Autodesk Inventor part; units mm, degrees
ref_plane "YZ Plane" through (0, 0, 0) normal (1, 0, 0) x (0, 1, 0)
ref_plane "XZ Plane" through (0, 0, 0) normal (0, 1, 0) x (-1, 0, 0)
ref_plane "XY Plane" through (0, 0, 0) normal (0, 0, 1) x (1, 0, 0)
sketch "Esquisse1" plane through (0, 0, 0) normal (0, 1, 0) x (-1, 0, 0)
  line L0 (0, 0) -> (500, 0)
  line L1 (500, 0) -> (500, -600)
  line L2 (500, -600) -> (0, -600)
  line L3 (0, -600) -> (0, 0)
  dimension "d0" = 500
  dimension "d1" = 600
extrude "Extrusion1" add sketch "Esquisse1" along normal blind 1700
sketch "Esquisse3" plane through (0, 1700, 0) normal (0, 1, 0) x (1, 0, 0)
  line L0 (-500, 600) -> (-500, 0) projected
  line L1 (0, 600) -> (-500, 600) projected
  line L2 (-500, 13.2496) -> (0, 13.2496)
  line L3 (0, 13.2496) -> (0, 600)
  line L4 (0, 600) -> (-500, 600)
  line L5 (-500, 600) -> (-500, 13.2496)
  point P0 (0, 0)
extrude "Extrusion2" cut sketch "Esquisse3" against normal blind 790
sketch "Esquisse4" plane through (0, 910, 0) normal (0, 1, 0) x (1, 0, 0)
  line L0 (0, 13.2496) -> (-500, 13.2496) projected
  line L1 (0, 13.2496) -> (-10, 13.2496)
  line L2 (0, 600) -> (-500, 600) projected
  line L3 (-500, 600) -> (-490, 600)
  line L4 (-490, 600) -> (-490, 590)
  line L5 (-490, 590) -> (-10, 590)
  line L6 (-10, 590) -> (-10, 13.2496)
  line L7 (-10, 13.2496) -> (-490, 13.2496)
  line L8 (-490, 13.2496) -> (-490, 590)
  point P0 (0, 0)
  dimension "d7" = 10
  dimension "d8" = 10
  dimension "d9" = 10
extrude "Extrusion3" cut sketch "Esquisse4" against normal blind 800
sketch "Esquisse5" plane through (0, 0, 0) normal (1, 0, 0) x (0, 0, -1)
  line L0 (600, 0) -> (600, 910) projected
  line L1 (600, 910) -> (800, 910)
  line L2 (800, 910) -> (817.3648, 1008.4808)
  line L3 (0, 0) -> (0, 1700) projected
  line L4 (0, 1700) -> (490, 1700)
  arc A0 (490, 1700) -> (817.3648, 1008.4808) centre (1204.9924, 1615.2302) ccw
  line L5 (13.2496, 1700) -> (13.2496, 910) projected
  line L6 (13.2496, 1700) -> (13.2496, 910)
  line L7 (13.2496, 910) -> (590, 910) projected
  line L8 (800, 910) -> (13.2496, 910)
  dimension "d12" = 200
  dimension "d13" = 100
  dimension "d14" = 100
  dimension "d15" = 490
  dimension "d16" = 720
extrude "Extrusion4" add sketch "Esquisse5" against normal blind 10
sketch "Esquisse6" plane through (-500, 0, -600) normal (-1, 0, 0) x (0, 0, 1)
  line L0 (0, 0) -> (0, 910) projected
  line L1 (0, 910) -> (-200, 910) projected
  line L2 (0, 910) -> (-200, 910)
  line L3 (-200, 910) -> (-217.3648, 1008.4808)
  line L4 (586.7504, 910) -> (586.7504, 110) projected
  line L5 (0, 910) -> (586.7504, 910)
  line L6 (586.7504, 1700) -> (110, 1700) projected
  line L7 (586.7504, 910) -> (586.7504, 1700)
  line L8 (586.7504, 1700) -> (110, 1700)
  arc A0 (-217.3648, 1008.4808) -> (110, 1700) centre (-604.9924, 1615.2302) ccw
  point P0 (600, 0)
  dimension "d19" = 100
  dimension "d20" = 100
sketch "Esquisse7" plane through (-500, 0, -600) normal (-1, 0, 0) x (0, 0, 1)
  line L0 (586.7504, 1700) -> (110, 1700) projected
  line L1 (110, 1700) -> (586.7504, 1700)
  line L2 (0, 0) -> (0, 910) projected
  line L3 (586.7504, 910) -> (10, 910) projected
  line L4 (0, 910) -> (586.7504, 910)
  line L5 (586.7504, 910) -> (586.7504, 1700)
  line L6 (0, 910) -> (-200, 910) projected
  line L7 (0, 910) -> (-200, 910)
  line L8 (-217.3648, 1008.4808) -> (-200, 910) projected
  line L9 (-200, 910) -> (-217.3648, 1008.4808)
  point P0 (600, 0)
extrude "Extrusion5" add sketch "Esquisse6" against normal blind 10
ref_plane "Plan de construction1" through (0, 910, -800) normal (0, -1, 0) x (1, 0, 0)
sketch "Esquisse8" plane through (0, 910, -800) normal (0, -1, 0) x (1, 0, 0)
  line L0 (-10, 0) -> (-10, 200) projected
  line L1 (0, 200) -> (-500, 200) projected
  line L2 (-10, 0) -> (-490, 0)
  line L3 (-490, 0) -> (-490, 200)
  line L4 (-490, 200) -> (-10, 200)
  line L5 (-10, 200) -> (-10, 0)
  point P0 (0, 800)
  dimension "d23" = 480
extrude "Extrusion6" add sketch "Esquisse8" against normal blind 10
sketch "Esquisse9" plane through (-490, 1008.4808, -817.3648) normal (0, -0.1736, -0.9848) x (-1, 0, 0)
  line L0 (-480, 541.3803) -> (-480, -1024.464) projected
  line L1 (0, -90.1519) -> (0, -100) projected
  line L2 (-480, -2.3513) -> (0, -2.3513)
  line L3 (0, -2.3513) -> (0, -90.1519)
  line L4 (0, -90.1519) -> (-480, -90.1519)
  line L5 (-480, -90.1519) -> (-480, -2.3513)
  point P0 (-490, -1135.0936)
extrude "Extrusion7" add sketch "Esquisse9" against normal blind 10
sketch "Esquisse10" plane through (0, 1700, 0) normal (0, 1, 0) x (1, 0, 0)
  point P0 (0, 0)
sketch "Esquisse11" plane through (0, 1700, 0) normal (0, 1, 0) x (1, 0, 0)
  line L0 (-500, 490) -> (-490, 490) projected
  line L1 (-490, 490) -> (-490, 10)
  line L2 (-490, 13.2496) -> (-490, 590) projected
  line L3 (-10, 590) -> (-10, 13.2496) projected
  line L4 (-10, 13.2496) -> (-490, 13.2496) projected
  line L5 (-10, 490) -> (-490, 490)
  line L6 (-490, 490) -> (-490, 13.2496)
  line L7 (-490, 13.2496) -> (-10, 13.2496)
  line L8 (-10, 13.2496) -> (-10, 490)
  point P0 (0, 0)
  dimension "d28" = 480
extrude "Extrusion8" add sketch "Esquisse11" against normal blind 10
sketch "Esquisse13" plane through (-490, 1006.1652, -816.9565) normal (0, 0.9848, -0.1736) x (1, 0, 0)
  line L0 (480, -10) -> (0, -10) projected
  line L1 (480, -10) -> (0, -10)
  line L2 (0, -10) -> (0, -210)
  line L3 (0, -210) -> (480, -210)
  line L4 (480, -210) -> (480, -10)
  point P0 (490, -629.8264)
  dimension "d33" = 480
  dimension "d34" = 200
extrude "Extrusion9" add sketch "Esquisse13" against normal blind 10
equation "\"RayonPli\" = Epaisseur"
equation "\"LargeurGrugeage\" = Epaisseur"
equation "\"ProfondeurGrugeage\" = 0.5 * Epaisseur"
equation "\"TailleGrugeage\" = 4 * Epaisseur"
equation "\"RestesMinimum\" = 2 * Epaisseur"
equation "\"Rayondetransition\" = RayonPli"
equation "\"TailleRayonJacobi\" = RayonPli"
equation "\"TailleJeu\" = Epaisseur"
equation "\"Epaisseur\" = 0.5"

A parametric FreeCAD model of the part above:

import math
import FreeCAD as App
import Part
import Sketcher
Q = App.Units.Quantity

doc = App.newDocument("Part")
body = doc.addObject("PartDesign::Body", "Body")

# Sketch on XZ plane
sketch1 = body.newObject("Sketcher::SketchObject", "Sketch")
sketch1.AttachmentSupport = (doc.getObject("XZ_Plane"), [""])
sketch1.MapMode = "FlatFace"
sketch1.addGeometry([
    Part.LineSegment(App.Vector(-500, 0, 0), App.Vector(0, 0, 0)),
    Part.LineSegment(App.Vector(0, 0, 0), App.Vector(0, -600, 0)),
    Part.LineSegment(App.Vector(0, -600, 0), App.Vector(-500, -600, 0)),
    Part.LineSegment(App.Vector(-500, -600, 0), App.Vector(-500, 0, 0)),
], False)
sketch1.addConstraint([
    Sketcher.Constraint("Coincident", 0, 2, 1, 1),
    Sketcher.Constraint("Coincident", 1, 2, 2, 1),
    Sketcher.Constraint("Coincident", 2, 2, 3, 1),
    Sketcher.Constraint("Coincident", 3, 2, 0, 1),
    Sketcher.Constraint("Horizontal", 0),
    Sketcher.Constraint("Vertical", 1),
    Sketcher.Constraint("Horizontal", 2),
    Sketcher.Constraint("Vertical", 3),
    Sketcher.Constraint("Coincident", 0, 2, -1, 1),
    Sketcher.Constraint("DistanceX", 0, 1, 0, 2, Q("500 mm")),
    Sketcher.Constraint("DistanceY", 1, 2, 1, 1, Q("600 mm")),
])
pad1 = body.newObject("PartDesign::Pad", "Pad")
pad1.Profile = sketch1
pad1.Length = 1700
pad1.Reversed = True

# Sketch on XZ plane
sketch2 = body.newObject("Sketcher::SketchObject", "Sketch001")
sketch2.AttachmentSupport = (doc.getObject("XZ_Plane"), [""])
sketch2.MapMode = "FlatFace"
sketch2.AttachmentOffset = App.Placement(App.Vector(0, 0, -1700), App.Rotation())
sketch2.addGeometry([
    Part.LineSegment(App.Vector(0, -600, 0), App.Vector(-500, -600, 0)),
    Part.LineSegment(App.Vector(-500, -600, 0), App.Vector(-500, -13, 0)),
    Part.LineSegment(App.Vector(-500, -13, 0), App.Vector(0, -13, 0)),
    Part.LineSegment(App.Vector(0, -13, 0), App.Vector(0, -600, 0)),
], False)
sketch2.addConstraint([
    Sketcher.Constraint("Coincident", 0, 2, 1, 1),
    Sketcher.Constraint("Coincident", 1, 2, 2, 1),
    Sketcher.Constraint("Coincident", 2, 2, 3, 1),
    Sketcher.Constraint("Coincident", 3, 2, 0, 1),
    Sketcher.Constraint("Horizontal", 0),
    Sketcher.Constraint("Vertical", 1),
    Sketcher.Constraint("Horizontal", 2),
    Sketcher.Constraint("Vertical", 3),
    Sketcher.Constraint("PointOnObject", 2, 2, -2),
    Sketcher.Constraint("DistanceX", 0, 2, 0, 1, Q("500 mm")),
    Sketcher.Constraint("DistanceY", 0, 2, -1, 1, Q("600 mm")),
    Sketcher.Constraint("DistanceY", 1, 1, 1, 2, Q("586.7504 mm")),
])
pocket1 = body.newObject("PartDesign::Pocket", "Pocket")
pocket1.Profile = sketch2
pocket1.Length = 790
pocket1.Reversed = True

# Sketch on XZ plane
sketch3 = body.newObject("Sketcher::SketchObject", "Sketch002")
sketch3.AttachmentSupport = (doc.getObject("XZ_Plane"), [""])
sketch3.MapMode = "FlatFace"
sketch3.AttachmentOffset = App.Placement(App.Vector(0, 0, -910), App.Rotation())
sketch3.addGeometry([
    Part.LineSegment(App.Vector(-490, -13, 0), App.Vector(-10, -13, 0)),
    Part.LineSegment(App.Vector(-10, -13, 0), App.Vector(-10, -590, 0)),
    Part.LineSegment(App.Vector(-10, -590, 0), App.Vector(-490, -590, 0)),
    Part.LineSegment(App.Vector(-490, -590, 0), App.Vector(-490, -13, 0)),
], False)
sketch3.addConstraint([
    Sketcher.Constraint("Coincident", 0, 2, 1, 1),
    Sketcher.Constraint("Coincident", 1, 2, 2, 1),
    Sketcher.Constraint("Coincident", 2, 2, 3, 1),
    Sketcher.Constraint("Coincident", 3, 2, 0, 1),
    Sketcher.Constraint("Horizontal", 0),
    Sketcher.Constraint("Vertical", 1),
    Sketcher.Constraint("Horizontal", 2),
    Sketcher.Constraint("Vertical", 3),
    Sketcher.Constraint("DistanceX", 0, 2, -1, 1, Q("10 mm")),
    Sketcher.Constraint("DistanceX", 0, 1, 0, 2, Q("480 mm")),
    Sketcher.Constraint("DistanceY", 1, 2, -1, 1, Q("590 mm")),
    Sketcher.Constraint("DistanceY", 1, 2, 1, 1, Q("576.7504 mm")),
])
pocket2 = body.newObject("PartDesign::Pocket", "Pocket001")
pocket2.Profile = sketch3
pocket2.Length = 800
pocket2.Reversed = True

# Sketch on YZ plane
sketch4 = body.newObject("Sketcher::SketchObject", "Sketch003")
sketch4.AttachmentSupport = (doc.getObject("YZ_Plane"), [""])
sketch4.MapMode = "FlatFace"
sketch4.addGeometry([
    Part.LineSegment(App.Vector(910, -13, 0), App.Vector(910, -800, 0)),  # 0
    Part.LineSegment(App.Vector(910, -800, 0), App.Vector(1008, -817, 0)),  # 1
    Part.ArcOfCircle(Part.Circle(App.Vector(1615, -1205, 0), App.Vector(0, 0, 1), 720), math.radians(83), math.radians(147)),  # 2
    Part.LineSegment(App.Vector(1700, -490, 0), App.Vector(1700, -13, 0)),  # 3
    Part.LineSegment(App.Vector(1700, -13, 0), App.Vector(910, -13, 0)),  # 4
], False)
sketch4.addConstraint([
    Sketcher.Constraint("Coincident", 0, 2, 1, 1),
    Sketcher.Constraint("Coincident", 1, 2, 2, 2),
    Sketcher.Constraint("Coincident", 2, 1, 3, 1),
    Sketcher.Constraint("Coincident", 3, 2, 4, 1),
    Sketcher.Constraint("Coincident", 4, 2, 0, 1),
    Sketcher.Constraint("Vertical", 0),
    Sketcher.Constraint("Vertical", 3),
    Sketcher.Constraint("Horizontal", 4),
    Sketcher.Constraint("Radius", 2, Q("720 mm")),
    Sketcher.Constraint("Distance", 1, Q("100 mm")),
    Sketcher.Constraint("DistanceY", 2, 1, -1, 1, Q("490 mm")),
    Sketcher.Constraint("DistanceX", 4, 2, 4, 1, Q("790 mm")),
    Sketcher.Constraint("Angle", 1, Q("-10 deg")),
    Sketcher.Constraint("DistanceX", -1, 1, 0, 2, Q("910 mm")),
    Sketcher.Constraint("DistanceY", 0, 2, -1, 1, Q("800 mm")),
    Sketcher.Constraint("DistanceY", 0, 2, 0, 1, Q("786.7504 mm")),
])
pad2 = body.newObject("PartDesign::Pad", "Pad001")
pad2.Profile = sketch4
pad2.Length = 10
pad2.Reversed = True

# Sketch on YZ plane
sketch5 = body.newObject("Sketcher::SketchObject", "Sketch004")
sketch5.AttachmentSupport = (doc.getObject("YZ_Plane"), [""])
sketch5.MapMode = "FlatFace"
sketch5.AttachmentOffset = App.Placement(App.Vector(0, 0, -500), App.Rotation())
sketch5.addGeometry([
    Part.LineSegment(App.Vector(910, -800, 0), App.Vector(910, -13, 0)),  # 0
    Part.LineSegment(App.Vector(910, -13, 0), App.Vector(1700, -13, 0)),  # 1
    Part.LineSegment(App.Vector(1700, -13, 0), App.Vector(1700, -490, 0)),  # 2
    Part.ArcOfCircle(Part.Circle(App.Vector(1615, -1205, 0), App.Vector(0, 0, 1), 720), math.radians(83), math.radians(147)),  # 3
    Part.LineSegment(App.Vector(1008, -817, 0), App.Vector(910, -800, 0)),  # 4
], False)
sketch5.addConstraint([
    Sketcher.Constraint("Coincident", 0, 2, 1, 1),
    Sketcher.Constraint("Coincident", 1, 2, 2, 1),
    Sketcher.Constraint("Coincident", 2, 2, 3, 1),
    Sketcher.Constraint("Coincident", 3, 2, 4, 1),
    Sketcher.Constraint("Coincident", 4, 2, 0, 1),
    Sketcher.Constraint("Vertical", 0),
    Sketcher.Constraint("Horizontal", 1),
    Sketcher.Constraint("Vertical", 2),
    Sketcher.Constraint("Distance", 4, Q("100 mm")),
    Sketcher.Constraint("Radius", 3, Q("720 mm")),
    Sketcher.Constraint("DistanceX", 1, 1, 1, 2, Q("790 mm")),
    Sketcher.Constraint("Angle", 4, Q("170 deg")),
    Sketcher.Constraint("DistanceX", -1, 1, 0, 2, Q("910 mm")),
    Sketcher.Constraint("DistanceY", 2, 2, -1, 1, Q("490 mm")),
    Sketcher.Constraint("DistanceY", 4, 2, -1, 1, Q("800 mm")),
    Sketcher.Constraint("DistanceY", 0, 1, 0, 2, Q("786.7504 mm")),
])
pad3 = body.newObject("PartDesign::Pad", "Pad002")
pad3.Profile = sketch5
pad3.Length = 10

# Sketch on XZ plane
sketch6 = body.newObject("Sketcher::SketchObject", "Sketch005")
sketch6.AttachmentSupport = (doc.getObject("XZ_Plane"), [""])
sketch6.MapMode = "FlatFace"
sketch6.AttachmentOffset = App.Placement(App.Vector(0, 0, -910), App.Rotation())
sketch6.addGeometry([
    Part.LineSegment(App.Vector(-490, -800, 0), App.Vector(-10, -800, 0)),
    Part.LineSegment(App.Vector(-10, -800, 0), App.Vector(-10, -600, 0)),
    Part.LineSegment(App.Vector(-10, -600, 0), App.Vector(-490, -600, 0)),
    Part.LineSegment(App.Vector(-490, -600, 0), App.Vector(-490, -800, 0)),
], False)
sketch6.addConstraint([
    Sketcher.Constraint("Coincident", 0, 2, 1, 1),
    Sketcher.Constraint("Coincident", 1, 2, 2, 1),
    Sketcher.Constraint("Coincident", 2, 2, 3, 1),
    Sketcher.Constraint("Coincident", 3, 2, 0, 1),
    Sketcher.Constraint("Horizontal", 0),
    Sketcher.Constraint("Vertical", 1),
    Sketcher.Constraint("Horizontal", 2),
    Sketcher.Constraint("Vertical", 3),
    Sketcher.Constraint("DistanceX", 0, 1, 0, 2, Q("480 mm")),
    Sketcher.Constraint("DistanceY", 1, 1, 1, 2, Q("200 mm")),
    Sketcher.Constraint("DistanceX", 0, 2, -1, 1, Q("10 mm")),
    Sketcher.Constraint("DistanceY", 0, 2, -1, 1, Q("800 mm")),
])
pad4 = body.newObject("PartDesign::Pad", "Pad003")
pad4.Profile = sketch6
pad4.Length = 10
pad4.Reversed = True

# Sketch on an angled plane
sketch7 = body.newObject("Sketcher::SketchObject", "Sketch006")
sketch7.Placement = App.Placement(App.Vector(-490, 1008.4808, -817.3648), App.Rotation(App.Vector(-1, 0, 0), App.Vector(0, 0.984807753, -0.173648178), App.Vector(0, -0.173648178, -0.984807753), "ZXY"))
sketch7.addGeometry([
    Part.LineSegment(App.Vector(0, -2, 0), App.Vector(-480, -2, 0)),
    Part.LineSegment(App.Vector(-480, -2, 0), App.Vector(-480, -90, 0)),
    Part.LineSegment(App.Vector(-480, -90, 0), App.Vector(0, -90, 0)),
    Part.LineSegment(App.Vector(0, -90, 0), App.Vector(0, -2, 0)),
], False)
sketch7.addConstraint([
    Sketcher.Constraint("Coincident", 0, 2, 1, 1),
    Sketcher.Constraint("Coincident", 1, 2, 2, 1),
    Sketcher.Constraint("Coincident", 2, 2, 3, 1),
    Sketcher.Constraint("Coincident", 3, 2, 0, 1),
    Sketcher.Constraint("Horizontal", 0),
    Sketcher.Constraint("Vertical", 1),
    Sketcher.Constraint("Horizontal", 2),
    Sketcher.Constraint("Vertical", 3),
    Sketcher.Constraint("PointOnObject", 2, 2, -2),
    Sketcher.Constraint("DistanceX", 0, 2, 0, 1, Q("480 mm")),
    Sketcher.Constraint("DistanceY", 1, 2, 1, 1, Q("87.8006 mm")),
    Sketcher.Constraint("DistanceY", 1, 2, -1, 1, Q("90.152 mm")),
])
pad5 = body.newObject("PartDesign::Pad", "Pad004")
pad5.Profile = sketch7
pad5.Length = 10
pad5.Reversed = True

# Sketch on XZ plane
sketch8 = body.newObject("Sketcher::SketchObject", "Sketch007")
sketch8.AttachmentSupport = (doc.getObject("XZ_Plane"), [""])
sketch8.MapMode = "FlatFace"
sketch8.AttachmentOffset = App.Placement(App.Vector(0, 0, -1700), App.Rotation())
sketch8.addGeometry([
    Part.LineSegment(App.Vector(-10, -490, 0), App.Vector(-490, -490, 0)),
    Part.LineSegment(App.Vector(-490, -490, 0), App.Vector(-490, -13, 0)),
    Part.LineSegment(App.Vector(-490, -13, 0), App.Vector(-10, -13, 0)),
    Part.LineSegment(App.Vector(-10, -13, 0), App.Vector(-10, -490, 0)),
], False)
sketch8.addConstraint([
    Sketcher.Constraint("Coincident", 0, 2, 1, 1),
    Sketcher.Constraint("Coincident", 1, 2, 2, 1),
    Sketcher.Constraint("Coincident", 2, 2, 3, 1),
    Sketcher.Constraint("Coincident", 3, 2, 0, 1),
    Sketcher.Constraint("Horizontal", 0),
    Sketcher.Constraint("Vertical", 1),
    Sketcher.Constraint("Horizontal", 2),
    Sketcher.Constraint("Vertical", 3),
    Sketcher.Constraint("DistanceX", 0, 2, 0, 1, Q("480 mm")),
    Sketcher.Constraint("DistanceX", 0, 2, -1, 1, Q("490 mm")),
    Sketcher.Constraint("DistanceY", 0, 2, -1, 1, Q("490 mm")),
    Sketcher.Constraint("DistanceY", 1, 1, 1, 2, Q("476.7504 mm")),
])
pad6 = body.newObject("PartDesign::Pad", "Pad005")
pad6.Profile = sketch8
pad6.Length = 10

# Sketch on an angled plane
sketch9 = body.newObject("Sketcher::SketchObject", "Sketch008")
sketch9.Placement = App.Placement(App.Vector(-490, 1006.1652, -816.9565), App.Rotation(App.Vector(1, 0, 0), App.Vector(0, -0.173648178, -0.984807753), App.Vector(0, 0.984807753, -0.173648178), "ZXY"))
sketch9.addGeometry([
    Part.LineSegment(App.Vector(480, -210, 0), App.Vector(480, -10, 0)),
    Part.LineSegment(App.Vector(480, -10, 0), App.Vector(0, -10, 0)),
    Part.LineSegment(App.Vector(0, -10, 0), App.Vector(0, -210, 0)),
    Part.LineSegment(App.Vector(0, -210, 0), App.Vector(480, -210, 0)),
], False)
sketch9.addConstraint([
    Sketcher.Constraint("Coincident", 0, 2, 1, 1),
    Sketcher.Constraint("Coincident", 1, 2, 2, 1),
    Sketcher.Constraint("Coincident", 2, 2, 3, 1),
    Sketcher.Constraint("Coincident", 3, 2, 0, 1),
    Sketcher.Constraint("Vertical", 0),
    Sketcher.Constraint("Horizontal", 1),
    Sketcher.Constraint("Vertical", 2),
    Sketcher.Constraint("Horizontal", 3),
    Sketcher.Constraint("PointOnObject", 1, 2, -2),
    Sketcher.Constraint("DistanceX", 1, 2, 1, 1, Q("480 mm")),
    Sketcher.Constraint("DistanceY", 0, 1, 0, 2, Q("200 mm")),
    Sketcher.Constraint("DistanceY", 0, 2, -1, 1, Q("10 mm")),
])
pad7 = body.newObject("PartDesign::Pad", "Pad006")
pad7.Profile = sketch9
pad7.Length = 10
pad7.Reversed = True

doc.recompute()
